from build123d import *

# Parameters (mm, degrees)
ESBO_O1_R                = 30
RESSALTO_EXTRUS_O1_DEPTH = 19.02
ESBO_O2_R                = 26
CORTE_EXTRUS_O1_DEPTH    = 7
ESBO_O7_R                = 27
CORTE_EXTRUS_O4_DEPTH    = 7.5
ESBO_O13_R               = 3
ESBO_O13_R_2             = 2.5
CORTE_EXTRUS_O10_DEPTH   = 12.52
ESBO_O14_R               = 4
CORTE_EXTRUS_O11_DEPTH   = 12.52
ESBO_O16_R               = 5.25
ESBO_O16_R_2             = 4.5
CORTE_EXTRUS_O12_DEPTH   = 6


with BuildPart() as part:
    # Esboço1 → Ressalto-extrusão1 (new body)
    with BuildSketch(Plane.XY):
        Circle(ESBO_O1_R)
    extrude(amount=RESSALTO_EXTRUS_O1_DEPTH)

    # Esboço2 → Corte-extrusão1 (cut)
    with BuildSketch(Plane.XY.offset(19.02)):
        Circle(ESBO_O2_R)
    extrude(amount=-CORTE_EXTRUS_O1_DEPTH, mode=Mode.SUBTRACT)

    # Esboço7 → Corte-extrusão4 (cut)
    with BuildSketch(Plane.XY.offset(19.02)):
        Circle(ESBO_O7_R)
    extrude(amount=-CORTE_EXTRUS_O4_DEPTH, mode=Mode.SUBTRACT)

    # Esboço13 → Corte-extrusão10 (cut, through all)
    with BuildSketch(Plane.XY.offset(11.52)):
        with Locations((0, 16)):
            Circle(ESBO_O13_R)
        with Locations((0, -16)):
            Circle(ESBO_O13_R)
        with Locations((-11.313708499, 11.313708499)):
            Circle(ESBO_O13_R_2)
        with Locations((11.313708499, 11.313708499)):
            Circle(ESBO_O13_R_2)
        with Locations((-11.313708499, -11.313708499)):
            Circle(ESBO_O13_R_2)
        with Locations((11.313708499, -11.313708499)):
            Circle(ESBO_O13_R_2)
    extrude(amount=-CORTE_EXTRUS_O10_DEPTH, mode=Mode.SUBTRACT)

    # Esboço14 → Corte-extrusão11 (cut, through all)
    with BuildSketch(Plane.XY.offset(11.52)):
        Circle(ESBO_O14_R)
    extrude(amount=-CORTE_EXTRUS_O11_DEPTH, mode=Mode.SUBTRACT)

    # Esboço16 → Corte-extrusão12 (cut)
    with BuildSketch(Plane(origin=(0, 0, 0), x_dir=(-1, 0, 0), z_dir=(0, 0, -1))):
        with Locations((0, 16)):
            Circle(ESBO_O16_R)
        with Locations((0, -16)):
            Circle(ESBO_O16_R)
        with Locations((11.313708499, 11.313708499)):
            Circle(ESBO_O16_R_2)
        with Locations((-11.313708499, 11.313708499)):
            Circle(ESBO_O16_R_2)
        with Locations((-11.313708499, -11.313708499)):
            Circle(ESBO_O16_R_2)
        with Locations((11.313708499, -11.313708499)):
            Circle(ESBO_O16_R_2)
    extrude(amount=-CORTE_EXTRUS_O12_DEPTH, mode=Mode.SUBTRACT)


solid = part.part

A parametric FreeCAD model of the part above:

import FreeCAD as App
import Part
import Sketcher
from FreeCAD import Vector

doc = App.newDocument("Part")
body = doc.addObject("PartDesign::Body", "Body")

sketch1 = body.newObject("Sketcher::SketchObject", "Sketch")
sketch1.AttachmentSupport = (doc.getObject("XY_Plane"), [""])
sketch1.MapMode = "FlatFace"
sketch1.addGeometry(Part.Circle(Vector(0, 0, 0), Vector(0, 0, 1), 30), False)
sketch1.addConstraint(Sketcher.Constraint("Coincident", 0, 3, -1, 1))
sketch1.addConstraint(Sketcher.Constraint("Diameter", 0, 60.0))
pad1 = body.newObject("PartDesign::Pad", "Pad")
pad1.Profile = sketch1
pad1.Length = 19.02

sketch2 = body.newObject("Sketcher::SketchObject", "Sketch001")
sketch2.AttachmentSupport = (doc.getObject("XY_Plane"), [""])
sketch2.MapMode = "FlatFace"
sketch2.AttachmentOffset = App.Placement(Vector(0, 0, 19.02), App.Rotation())
sketch2.addGeometry(Part.Circle(Vector(0, 0, 0), Vector(0, 0, 1), 26), False)
sketch2.addConstraint(Sketcher.Constraint("Coincident", 0, 3, -1, 1))
sketch2.addConstraint(Sketcher.Constraint("Diameter", 0, 52.0))
pocket1 = body.newObject("PartDesign::Pocket", "Pocket")
pocket1.Profile = sketch2
pocket1.Length = 7

sketch3 = body.newObject("Sketcher::SketchObject", "Sketch002")
sketch3.AttachmentSupport = (doc.getObject("XY_Plane"), [""])
sketch3.MapMode = "FlatFace"
sketch3.AttachmentOffset = App.Placement(Vector(0, 0, 19.02), App.Rotation())
sketch3.addGeometry(Part.Circle(Vector(0, 0, 0), Vector(0, 0, 1), 27), False)
sketch3.addConstraint(Sketcher.Constraint("Coincident", 0, 3, -1, 1))
sketch3.addConstraint(Sketcher.Constraint("Diameter", 0, 54.0))
pocket2 = body.newObject("PartDesign::Pocket", "Pocket001")
pocket2.Profile = sketch3
pocket2.Length = 7.5

sketch4 = body.newObject("Sketcher::SketchObject", "Sketch003")
sketch4.AttachmentSupport = (doc.getObject("XY_Plane"), [""])
sketch4.MapMode = "FlatFace"
sketch4.AttachmentOffset = App.Placement(Vector(0, 0, 11.52), App.Rotation())
sketch4.addGeometry(Part.Circle(Vector(0, 16, 0), Vector(0, 0, 1), 3), False)
sketch4.addGeometry(Part.Circle(Vector(0, -16, 0), Vector(0, 0, 1), 3), False)
sketch4.addGeometry(Part.Circle(Vector(-11.313708, 11.313708, 0), Vector(0, 0, 1), 2.5), False)
sketch4.addGeometry(Part.Circle(Vector(11.313708, 11.313708, 0), Vector(0, 0, 1), 2.5), False)
sketch4.addGeometry(Part.Circle(Vector(-11.313708, -11.313708, 0), Vector(0, 0, 1), 2.5), False)
sketch4.addGeometry(Part.Circle(Vector(11.313708, -11.313708, 0), Vector(0, 0, 1), 2.5), False)
sketch4.addConstraint(Sketcher.Constraint("Equal", 0, 1))
sketch4.addConstraint(Sketcher.Constraint("Equal", 2, 3))
sketch4.addConstraint(Sketcher.Constraint("Equal", 3, 4))
sketch4.addConstraint(Sketcher.Constraint("Equal", 4, 5))
sketch4.addConstraint(Sketcher.Constraint("Symmetric", 0, 3, 1, 3, -1, 1))
sketch4.addConstraint(Sketcher.Constraint("Symmetric", 3, 3, 4, 3, -1, 1))
sketch4.addConstraint(Sketcher.Constraint("Symmetric", 2, 3, 5, 3, -1, 1))
sketch4.addConstraint(Sketcher.Constraint("Symmetric", 2, 3, 3, 3, -2))
sketch4.addConstraint(Sketcher.Constraint("PointOnObject", 0, 3, -2))
sketch4.addConstraint(Sketcher.Constraint("Diameter", 0, 6.0))
sketch4.addConstraint(Sketcher.Constraint("Diameter", 2, 5.0))
sketch4.addConstraint(Sketcher.Constraint("DistanceY", -1, 1, 0, 3, 16.0))
sketch4.addConstraint(Sketcher.Constraint("DistanceX", 2, 3, -1, 1, 11.313708))
sketch4.addConstraint(Sketcher.Constraint("DistanceY", -1, 1, 2, 3, 11.313708))
pocket3 = body.newObject("PartDesign::Pocket", "Pocket002")
pocket3.Profile = sketch4
pocket3.Type = "ThroughAll"

sketch5 = body.newObject("Sketcher::SketchObject", "Sketch004")
sketch5.AttachmentSupport = (doc.getObject("XY_Plane"), [""])
sketch5.MapMode = "FlatFace"
sketch5.AttachmentOffset = App.Placement(Vector(0, 0, 11.52), App.Rotation())
sketch5.addGeometry(Part.Circle(Vector(0, 0, 0), Vector(0, 0, 1), 4), False)
sketch5.addConstraint(Sketcher.Constraint("Coincident", 0, 3, -1, 1))
sketch5.addConstraint(Sketcher.Constraint("Diameter", 0, 8.0))
pocket4 = body.newObject("PartDesign::Pocket", "Pocket003")
pocket4.Profile = sketch5
pocket4.Type = "ThroughAll"

sketch6 = body.newObject("Sketcher::SketchObject", "Sketch005")
sketch6.AttachmentSupport = (doc.getObject("XY_Plane"), [""])
sketch6.MapMode = "FlatFace"
sketch6.addGeometry(Part.Circle(Vector(0, 16, 0), Vector(0, 0, 1), 5.25), False)
sketch6.addGeometry(Part.Circle(Vector(0, -16, 0), Vector(0, 0, 1), 5.25), False)
sketch6.addGeometry(Part.Circle(Vector(-11.313708, 11.313708, 0), Vector(0, 0, 1), 4.5), False)
sketch6.addGeometry(Part.Circle(Vector(11.313708, 11.313708, 0), Vector(0, 0, 1), 4.5), False)
sketch6.addGeometry(Part.Circle(Vector(11.313708, -11.313708, 0), Vector(0, 0, 1), 4.5), False)
sketch6.addGeometry(Part.Circle(Vector(-11.313708, -11.313708, 0), Vector(0, 0, 1), 4.5), False)
sketch6.addConstraint(Sketcher.Constraint("Equal", 0, 1))
sketch6.addConstraint(Sketcher.Constraint("Equal", 2, 3))
sketch6.addConstraint(Sketcher.Constraint("Equal", 3, 4))
sketch6.addConstraint(Sketcher.Constraint("Equal", 4, 5))
sketch6.addConstraint(Sketcher.Constraint("Symmetric", 0, 3, 1, 3, -1, 1))
sketch6.addConstraint(Sketcher.Constraint("Symmetric", 2, 3, 4, 3, -1, 1))
sketch6.addConstraint(Sketcher.Constraint("Symmetric", 3, 3, 5, 3, -1, 1))
sketch6.addConstraint(Sketcher.Constraint("Symmetric", 2, 3, 3, 3, -2))
sketch6.addConstraint(Sketcher.Constraint("PointOnObject", 0, 3, -2))
sketch6.addConstraint(Sketcher.Constraint("Diameter", 2, 9.0))
sketch6.addConstraint(Sketcher.Constraint("Diameter", 0, 10.5))
sketch6.addConstraint(Sketcher.Constraint("DistanceY", -1, 1, 0, 3, 16.0))
sketch6.addConstraint(Sketcher.Constraint("DistanceX", 2, 3, -1, 1, 11.313708))
sketch6.addConstraint(Sketcher.Constraint("DistanceY", -1, 1, 2, 3, 11.313708))
pocket5 = body.newObject("PartDesign::Pocket", "Pocket004")
pocket5.Profile = sketch6
pocket5.Length = 6
pocket5.Reversed = True

doc.recompute()
